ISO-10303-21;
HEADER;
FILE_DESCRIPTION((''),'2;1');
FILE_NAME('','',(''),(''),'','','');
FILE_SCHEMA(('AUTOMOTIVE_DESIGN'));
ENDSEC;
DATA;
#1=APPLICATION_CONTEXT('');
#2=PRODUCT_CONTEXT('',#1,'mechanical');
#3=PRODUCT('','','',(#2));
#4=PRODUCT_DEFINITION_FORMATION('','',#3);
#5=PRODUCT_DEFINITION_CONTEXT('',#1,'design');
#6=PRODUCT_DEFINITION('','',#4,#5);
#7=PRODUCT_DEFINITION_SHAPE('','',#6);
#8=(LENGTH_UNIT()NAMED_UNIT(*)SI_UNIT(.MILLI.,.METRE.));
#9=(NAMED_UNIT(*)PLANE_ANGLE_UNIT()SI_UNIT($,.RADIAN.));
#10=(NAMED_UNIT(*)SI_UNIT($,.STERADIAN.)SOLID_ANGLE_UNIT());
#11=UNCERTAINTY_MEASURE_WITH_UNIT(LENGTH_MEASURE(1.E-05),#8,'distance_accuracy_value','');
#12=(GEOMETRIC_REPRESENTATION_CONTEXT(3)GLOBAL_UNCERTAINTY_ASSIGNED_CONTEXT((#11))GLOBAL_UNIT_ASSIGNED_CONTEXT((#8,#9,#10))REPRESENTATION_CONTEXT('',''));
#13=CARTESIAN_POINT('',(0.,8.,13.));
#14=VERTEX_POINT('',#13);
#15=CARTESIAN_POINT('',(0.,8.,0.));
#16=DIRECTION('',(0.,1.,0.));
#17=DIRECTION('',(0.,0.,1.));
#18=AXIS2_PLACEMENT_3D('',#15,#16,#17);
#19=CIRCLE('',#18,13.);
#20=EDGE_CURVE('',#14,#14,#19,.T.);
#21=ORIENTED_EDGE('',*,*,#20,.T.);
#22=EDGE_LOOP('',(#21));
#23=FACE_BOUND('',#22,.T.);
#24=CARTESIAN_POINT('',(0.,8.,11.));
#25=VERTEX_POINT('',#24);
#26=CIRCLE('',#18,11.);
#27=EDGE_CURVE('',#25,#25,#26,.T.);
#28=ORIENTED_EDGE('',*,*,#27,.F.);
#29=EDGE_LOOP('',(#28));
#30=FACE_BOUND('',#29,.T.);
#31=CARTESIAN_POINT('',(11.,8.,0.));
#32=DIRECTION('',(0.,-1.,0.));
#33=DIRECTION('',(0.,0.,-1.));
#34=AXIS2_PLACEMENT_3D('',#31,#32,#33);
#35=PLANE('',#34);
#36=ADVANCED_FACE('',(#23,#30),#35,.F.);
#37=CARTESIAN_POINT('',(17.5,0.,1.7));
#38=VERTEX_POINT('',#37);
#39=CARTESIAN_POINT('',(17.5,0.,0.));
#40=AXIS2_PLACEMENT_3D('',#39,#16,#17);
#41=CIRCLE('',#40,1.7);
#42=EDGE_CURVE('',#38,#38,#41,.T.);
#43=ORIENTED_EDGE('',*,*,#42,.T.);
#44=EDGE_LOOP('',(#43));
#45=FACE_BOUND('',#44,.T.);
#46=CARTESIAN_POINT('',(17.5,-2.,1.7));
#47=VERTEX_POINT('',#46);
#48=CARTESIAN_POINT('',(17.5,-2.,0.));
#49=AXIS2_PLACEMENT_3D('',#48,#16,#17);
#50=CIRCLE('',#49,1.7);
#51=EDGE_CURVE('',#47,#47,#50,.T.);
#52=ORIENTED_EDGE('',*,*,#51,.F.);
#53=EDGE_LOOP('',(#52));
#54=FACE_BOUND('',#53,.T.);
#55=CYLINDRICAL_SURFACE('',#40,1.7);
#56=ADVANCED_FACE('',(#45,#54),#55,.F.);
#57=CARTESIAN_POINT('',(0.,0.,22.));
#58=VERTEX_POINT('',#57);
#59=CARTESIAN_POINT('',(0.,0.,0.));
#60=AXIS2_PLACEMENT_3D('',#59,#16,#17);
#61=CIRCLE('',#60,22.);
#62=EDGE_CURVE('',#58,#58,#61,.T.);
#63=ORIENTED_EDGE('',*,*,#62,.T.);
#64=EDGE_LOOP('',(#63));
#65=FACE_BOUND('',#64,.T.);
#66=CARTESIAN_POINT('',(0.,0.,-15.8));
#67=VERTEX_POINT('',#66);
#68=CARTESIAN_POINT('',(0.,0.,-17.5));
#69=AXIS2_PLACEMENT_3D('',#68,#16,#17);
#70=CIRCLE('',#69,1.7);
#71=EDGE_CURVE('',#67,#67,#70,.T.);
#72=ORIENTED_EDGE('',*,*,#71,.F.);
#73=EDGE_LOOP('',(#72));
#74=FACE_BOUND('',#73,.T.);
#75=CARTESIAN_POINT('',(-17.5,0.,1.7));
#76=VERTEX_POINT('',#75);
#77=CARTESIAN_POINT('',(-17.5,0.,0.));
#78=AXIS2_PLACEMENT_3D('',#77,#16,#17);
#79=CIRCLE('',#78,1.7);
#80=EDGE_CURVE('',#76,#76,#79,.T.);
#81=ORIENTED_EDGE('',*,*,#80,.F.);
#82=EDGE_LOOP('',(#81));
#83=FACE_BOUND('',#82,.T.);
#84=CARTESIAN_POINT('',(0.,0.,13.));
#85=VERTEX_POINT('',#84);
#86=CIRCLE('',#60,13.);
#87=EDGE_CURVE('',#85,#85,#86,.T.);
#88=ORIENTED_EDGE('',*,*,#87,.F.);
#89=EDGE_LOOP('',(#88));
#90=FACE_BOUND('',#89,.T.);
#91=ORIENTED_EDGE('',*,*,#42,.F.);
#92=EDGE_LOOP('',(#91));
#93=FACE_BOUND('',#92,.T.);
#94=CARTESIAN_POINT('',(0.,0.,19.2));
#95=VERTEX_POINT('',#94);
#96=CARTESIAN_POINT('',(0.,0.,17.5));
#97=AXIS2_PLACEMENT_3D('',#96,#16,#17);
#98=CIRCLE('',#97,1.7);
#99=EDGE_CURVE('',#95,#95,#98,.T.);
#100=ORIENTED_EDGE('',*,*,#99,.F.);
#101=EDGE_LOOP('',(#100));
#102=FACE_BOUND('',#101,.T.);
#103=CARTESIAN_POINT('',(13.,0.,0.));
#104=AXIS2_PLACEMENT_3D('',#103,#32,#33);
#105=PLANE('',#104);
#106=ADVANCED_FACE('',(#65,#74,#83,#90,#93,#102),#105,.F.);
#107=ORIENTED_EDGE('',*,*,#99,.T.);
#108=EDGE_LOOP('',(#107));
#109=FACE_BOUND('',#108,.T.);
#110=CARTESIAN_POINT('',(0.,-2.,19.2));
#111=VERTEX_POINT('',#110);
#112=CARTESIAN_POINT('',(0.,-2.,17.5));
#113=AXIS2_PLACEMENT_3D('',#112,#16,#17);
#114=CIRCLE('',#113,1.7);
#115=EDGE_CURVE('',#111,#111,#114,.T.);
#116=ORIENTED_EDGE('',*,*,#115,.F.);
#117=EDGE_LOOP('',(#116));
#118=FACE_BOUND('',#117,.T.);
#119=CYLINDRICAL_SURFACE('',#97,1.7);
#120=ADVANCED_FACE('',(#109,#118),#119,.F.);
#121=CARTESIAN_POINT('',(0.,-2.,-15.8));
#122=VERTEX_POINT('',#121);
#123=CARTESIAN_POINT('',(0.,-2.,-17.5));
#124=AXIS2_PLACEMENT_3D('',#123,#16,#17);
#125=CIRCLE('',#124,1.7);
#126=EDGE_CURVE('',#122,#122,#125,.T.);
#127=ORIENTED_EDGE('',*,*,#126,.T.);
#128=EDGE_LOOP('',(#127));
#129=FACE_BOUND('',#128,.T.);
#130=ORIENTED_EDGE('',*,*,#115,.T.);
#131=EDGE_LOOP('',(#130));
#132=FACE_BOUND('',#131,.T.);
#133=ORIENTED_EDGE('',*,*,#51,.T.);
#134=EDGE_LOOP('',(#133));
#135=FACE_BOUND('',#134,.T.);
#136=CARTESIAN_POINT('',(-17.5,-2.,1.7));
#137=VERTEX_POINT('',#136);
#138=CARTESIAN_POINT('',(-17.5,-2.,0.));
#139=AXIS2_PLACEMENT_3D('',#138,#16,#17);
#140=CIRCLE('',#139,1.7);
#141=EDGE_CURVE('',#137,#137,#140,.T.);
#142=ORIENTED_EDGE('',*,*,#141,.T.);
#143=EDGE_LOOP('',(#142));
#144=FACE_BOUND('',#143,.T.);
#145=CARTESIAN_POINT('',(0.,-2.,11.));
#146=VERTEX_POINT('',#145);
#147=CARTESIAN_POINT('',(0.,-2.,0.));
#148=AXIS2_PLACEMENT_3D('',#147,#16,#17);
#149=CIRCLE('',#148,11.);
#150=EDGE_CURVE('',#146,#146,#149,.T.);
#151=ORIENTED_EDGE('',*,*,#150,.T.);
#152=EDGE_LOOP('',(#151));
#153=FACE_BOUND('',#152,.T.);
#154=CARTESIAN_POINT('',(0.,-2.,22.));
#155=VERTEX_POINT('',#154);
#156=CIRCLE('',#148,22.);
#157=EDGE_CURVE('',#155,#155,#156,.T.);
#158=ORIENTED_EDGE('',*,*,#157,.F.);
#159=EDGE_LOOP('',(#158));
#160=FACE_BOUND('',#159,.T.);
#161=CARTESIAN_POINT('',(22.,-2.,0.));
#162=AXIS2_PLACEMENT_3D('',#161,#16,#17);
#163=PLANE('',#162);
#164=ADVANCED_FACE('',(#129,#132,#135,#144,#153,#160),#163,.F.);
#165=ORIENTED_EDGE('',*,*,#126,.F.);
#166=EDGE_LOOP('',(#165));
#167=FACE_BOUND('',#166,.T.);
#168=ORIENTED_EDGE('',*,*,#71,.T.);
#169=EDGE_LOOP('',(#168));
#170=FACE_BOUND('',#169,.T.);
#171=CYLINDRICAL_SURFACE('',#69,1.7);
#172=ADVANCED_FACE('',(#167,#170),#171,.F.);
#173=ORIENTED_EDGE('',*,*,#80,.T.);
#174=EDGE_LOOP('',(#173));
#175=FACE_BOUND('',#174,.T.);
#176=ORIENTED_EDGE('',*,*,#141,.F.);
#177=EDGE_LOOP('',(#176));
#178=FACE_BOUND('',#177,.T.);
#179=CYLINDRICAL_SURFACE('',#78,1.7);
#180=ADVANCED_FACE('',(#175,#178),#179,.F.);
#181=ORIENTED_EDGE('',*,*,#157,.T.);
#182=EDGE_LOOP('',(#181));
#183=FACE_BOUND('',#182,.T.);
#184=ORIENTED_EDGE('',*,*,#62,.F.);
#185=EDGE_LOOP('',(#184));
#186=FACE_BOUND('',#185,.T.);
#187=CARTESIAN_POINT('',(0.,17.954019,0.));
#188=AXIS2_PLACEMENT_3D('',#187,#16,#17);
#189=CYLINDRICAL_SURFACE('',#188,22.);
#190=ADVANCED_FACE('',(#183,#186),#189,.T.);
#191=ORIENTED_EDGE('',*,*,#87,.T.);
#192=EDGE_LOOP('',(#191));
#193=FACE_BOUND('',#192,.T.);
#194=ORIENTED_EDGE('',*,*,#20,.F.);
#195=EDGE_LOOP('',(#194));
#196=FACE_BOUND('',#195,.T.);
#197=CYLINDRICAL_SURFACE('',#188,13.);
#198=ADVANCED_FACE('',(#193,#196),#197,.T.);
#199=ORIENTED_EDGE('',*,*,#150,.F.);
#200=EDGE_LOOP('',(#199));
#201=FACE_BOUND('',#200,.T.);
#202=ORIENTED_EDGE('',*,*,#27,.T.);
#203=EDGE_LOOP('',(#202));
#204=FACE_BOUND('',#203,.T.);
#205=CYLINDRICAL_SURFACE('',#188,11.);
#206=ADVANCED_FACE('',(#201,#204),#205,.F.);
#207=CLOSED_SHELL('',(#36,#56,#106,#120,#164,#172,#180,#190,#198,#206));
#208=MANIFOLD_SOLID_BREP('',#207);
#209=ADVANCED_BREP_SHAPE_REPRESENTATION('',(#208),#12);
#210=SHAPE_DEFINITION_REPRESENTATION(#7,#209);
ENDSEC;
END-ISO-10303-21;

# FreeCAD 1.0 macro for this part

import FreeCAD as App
import Part
import Sketcher

V = App.Vector

doc = App.newDocument("Part")
params = doc.addObject("Spreadsheet::Sheet", "Params")
for row, (alias, value) in enumerate([
    ("sketch1_width", "2 mm"),
    ("sketch1_width2", "13 mm"),
    ("sketch1_height", "8 mm"),
    ("revolution_angle", "360 deg"),
    ("sketch2_diameter", "22 mm"),
    ("sketch3_diameter", "3.4 mm"),
    ("hole_diameter", "3.4 mm"),
], start=1):
    params.set(f"A{row}", alias)
    params.set(f"B{row}", "=" + value)
    params.setAlias(f"B{row}", alias)

body = doc.addObject("PartDesign::Body", "Body")

# Sketch on XY plane
sketch1 = body.newObject("Sketcher::SketchObject", "Sketch")
sketch1.AttachmentSupport = (doc.getObject("XY_Plane"), [""])
sketch1.MapMode = "FlatFace"
sketch1.addGeometry(Part.LineSegment(V(11, 0, 0), V(9, 0, 0)), False)
sketch1.addGeometry(Part.LineSegment(V(9, 0, 0), V(9, -2, 0)), False)
sketch1.addGeometry(Part.LineSegment(V(9, -2, 0), V(22, -2, 0)), False)
sketch1.addGeometry(Part.LineSegment(V(22, -2, 0), V(22, 0, 0)), False)
sketch1.addGeometry(Part.LineSegment(V(22, 0, 0), V(13, 0, 0)), False)
sketch1.addGeometry(Part.LineSegment(V(13, 0, 0), V(13, 8, 0)), False)
sketch1.addGeometry(Part.LineSegment(V(13, 8, 0), V(11, 8, 0)), False)
sketch1.addGeometry(Part.LineSegment(V(11, 8, 0), V(11, 0, 0)), False)
sketch1.addConstraint(Sketcher.Constraint("Coincident", 0, 2, 1, 1))
sketch1.addConstraint(Sketcher.Constraint("Coincident", 1, 2, 2, 1))
sketch1.addConstraint(Sketcher.Constraint("Coincident", 2, 2, 3, 1))
sketch1.addConstraint(Sketcher.Constraint("Coincident", 3, 2, 4, 1))
sketch1.addConstraint(Sketcher.Constraint("Coincident", 4, 2, 5, 1))
sketch1.addConstraint(Sketcher.Constraint("Coincident", 5, 2, 6, 1))
sketch1.addConstraint(Sketcher.Constraint("Coincident", 6, 2, 7, 1))
sketch1.addConstraint(Sketcher.Constraint("Coincident", 7, 2, 0, 1))
sketch1.addConstraint(Sketcher.Constraint("Horizontal", 0))
sketch1.addConstraint(Sketcher.Constraint("Vertical", 1))
sketch1.addConstraint(Sketcher.Constraint("Horizontal", 2))
sketch1.addConstraint(Sketcher.Constraint("Vertical", 3))
sketch1.addConstraint(Sketcher.Constraint("Horizontal", 4))
sketch1.addConstraint(Sketcher.Constraint("Vertical", 5))
sketch1.addConstraint(Sketcher.Constraint("Horizontal", 6))
sketch1.addConstraint(Sketcher.Constraint("Vertical", 7))
sketch1.addConstraint(Sketcher.Constraint("PointOnObject", 0, 2, -1))
sketch1.addConstraint(Sketcher.Constraint("PointOnObject", 3, 2, -1))
sketch1.addConstraint(Sketcher.Constraint("Equal", 0, 6))
sketch1.addConstraint(Sketcher.Constraint("Equal", 6, 1))
sketch1.addConstraint(Sketcher.Constraint("DistanceX", 0, 2, 0, 1, 2.0))
sketch1.addConstraint(Sketcher.Constraint("DistanceX", 2, 1, 2, 2, 13.0))
sketch1.addConstraint(Sketcher.Constraint("DistanceY", 5, 1, 5, 2, 8.0))
sketch1.addConstraint(Sketcher.Constraint("DistanceX", -1, 1, 0, 2, 9.0))
sketch1.setExpression("Constraints[20]", "Params.sketch1_width")
sketch1.setExpression("Constraints[21]", "Params.sketch1_width2")
sketch1.setExpression("Constraints[22]", "Params.sketch1_height")
revolution = body.newObject("PartDesign::Revolution", "Revolution")
revolution.Profile = sketch1
revolution.ReferenceAxis = (sketch1, ["V_Axis"])
revolution.setExpression("Angle", "Params.revolution_angle")

# Sketch on XZ plane
sketch2 = body.newObject("Sketcher::SketchObject", "Sketch001")
sketch2.AttachmentSupport = (doc.getObject("XZ_Plane"), [""])
sketch2.MapMode = "FlatFace"
sketch2.addGeometry(Part.Circle(V(0, 0, 0), V(0, 0, 1), 11), False)
sketch2.addConstraint(Sketcher.Constraint("Coincident", 0, 3, -1, 1))
sketch2.addConstraint(Sketcher.Constraint("Diameter", 0, 22.0))
sketch2.setExpression("Constraints[1]", "Params.sketch2_diameter")
pocket1 = body.newObject("PartDesign::Pocket", "Pocket")
pocket1.Profile = sketch2
pocket1.Type = "ThroughAll"
pocket1.Reversed = True

# Sketch on XZ plane
sketch3 = body.newObject("Sketcher::SketchObject", "Sketch002")
sketch3.AttachmentSupport = (doc.getObject("XZ_Plane"), [""])
sketch3.MapMode = "FlatFace"
sketch3.addGeometry(Part.Circle(V(0, -17.5, 0), V(0, 0, 1), 1.7), False)
sketch3.addGeometry(Part.Circle(V(17.5, 0, 0), V(0, 0, 1), 1.7), False)
sketch3.addGeometry(Part.Circle(V(0, 17.5, 0), V(0, 0, 1), 1.7), False)
sketch3.addGeometry(Part.Circle(V(-17.5, 0, 0), V(0, 0, 1), 1.7), False)
sketch3.addConstraint(Sketcher.Constraint("Equal", 0, 1))
sketch3.addConstraint(Sketcher.Constraint("Equal", 1, 2))
sketch3.addConstraint(Sketcher.Constraint("Equal", 2, 3))
sketch3.addConstraint(Sketcher.Constraint("Symmetric", 0, 3, 2, 3, -1, 1))
sketch3.addConstraint(Sketcher.Constraint("Symmetric", 1, 3, 3, 3, -1, 1))
sketch3.addConstraint(Sketcher.Constraint("PointOnObject", 0, 3, -2))
sketch3.addConstraint(Sketcher.Constraint("PointOnObject", 1, 3, -1))
sketch3.addConstraint(Sketcher.Constraint("Diameter", 0, 3.4))
sketch3.addConstraint(Sketcher.Constraint("DistanceY", 0, 3, 2, 3, 35.0))
sketch3.addConstraint(Sketcher.Constraint("DistanceX", 3, 3, 1, 3, 35.0))
sketch3.setExpression("Constraints[7]", "Params.sketch3_diameter")
doc.recompute()
hole = body.newObject("PartDesign::Hole", "Hole")
hole.Profile = sketch3
hole.ThreadType = "None"
hole.setExpression("Diameter", "Params.hole_diameter")
hole.DepthType = "ThroughAll"
hole.Reversed = True

doc.recompute()
